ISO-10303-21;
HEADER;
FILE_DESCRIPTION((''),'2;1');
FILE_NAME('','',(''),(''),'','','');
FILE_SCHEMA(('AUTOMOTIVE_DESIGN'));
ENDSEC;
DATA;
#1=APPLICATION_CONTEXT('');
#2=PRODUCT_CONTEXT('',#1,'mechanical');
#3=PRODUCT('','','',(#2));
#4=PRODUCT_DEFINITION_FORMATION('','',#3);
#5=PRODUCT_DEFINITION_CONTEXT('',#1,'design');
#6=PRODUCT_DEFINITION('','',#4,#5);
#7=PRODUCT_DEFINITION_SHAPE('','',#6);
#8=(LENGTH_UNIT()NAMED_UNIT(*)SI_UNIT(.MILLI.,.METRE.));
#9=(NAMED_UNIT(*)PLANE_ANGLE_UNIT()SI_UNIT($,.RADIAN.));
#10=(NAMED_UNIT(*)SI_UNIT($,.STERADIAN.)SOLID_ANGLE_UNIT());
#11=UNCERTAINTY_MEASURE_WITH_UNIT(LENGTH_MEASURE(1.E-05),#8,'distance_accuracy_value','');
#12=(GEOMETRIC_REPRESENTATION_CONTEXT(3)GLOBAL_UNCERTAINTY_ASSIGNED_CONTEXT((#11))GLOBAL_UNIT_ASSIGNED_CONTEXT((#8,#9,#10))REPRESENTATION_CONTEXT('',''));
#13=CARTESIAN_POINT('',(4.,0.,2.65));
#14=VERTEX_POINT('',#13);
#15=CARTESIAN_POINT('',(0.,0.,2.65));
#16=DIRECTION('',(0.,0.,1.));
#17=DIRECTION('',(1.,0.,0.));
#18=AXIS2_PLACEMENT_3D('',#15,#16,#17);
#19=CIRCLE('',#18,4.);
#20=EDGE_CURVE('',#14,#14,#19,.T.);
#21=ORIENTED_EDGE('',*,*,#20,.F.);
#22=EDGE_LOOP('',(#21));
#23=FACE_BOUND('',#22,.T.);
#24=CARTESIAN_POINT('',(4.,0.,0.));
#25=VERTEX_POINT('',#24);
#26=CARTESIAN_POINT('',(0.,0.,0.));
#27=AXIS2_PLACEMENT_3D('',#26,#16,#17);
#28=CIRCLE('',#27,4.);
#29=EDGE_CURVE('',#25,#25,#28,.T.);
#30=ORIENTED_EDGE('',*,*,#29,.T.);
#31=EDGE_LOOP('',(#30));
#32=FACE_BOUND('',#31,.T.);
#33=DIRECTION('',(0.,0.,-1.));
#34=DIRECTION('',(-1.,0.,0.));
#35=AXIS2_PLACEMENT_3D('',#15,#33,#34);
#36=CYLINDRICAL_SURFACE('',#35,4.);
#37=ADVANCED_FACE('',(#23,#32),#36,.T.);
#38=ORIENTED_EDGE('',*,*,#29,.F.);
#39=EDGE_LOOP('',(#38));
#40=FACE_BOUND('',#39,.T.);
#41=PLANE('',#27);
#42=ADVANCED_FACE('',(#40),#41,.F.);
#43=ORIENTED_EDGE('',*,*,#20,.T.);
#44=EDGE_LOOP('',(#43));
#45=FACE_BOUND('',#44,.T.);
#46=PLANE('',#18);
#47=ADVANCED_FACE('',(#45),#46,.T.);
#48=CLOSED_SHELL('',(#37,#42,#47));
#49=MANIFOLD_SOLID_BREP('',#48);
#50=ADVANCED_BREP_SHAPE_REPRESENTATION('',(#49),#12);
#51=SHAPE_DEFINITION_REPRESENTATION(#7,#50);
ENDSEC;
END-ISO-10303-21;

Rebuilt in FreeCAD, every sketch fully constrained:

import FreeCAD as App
import Part
import Sketcher

doc = App.newDocument("Part")
body = doc.addObject("PartDesign::Body", "Body")

sketch1 = body.newObject("Sketcher::SketchObject", "Sketch")
sketch1.AttachmentSupport = (doc.getObject("XY_Plane"), [""])
sketch1.MapMode = "FlatFace"
sketch1.addGeometry(Part.Circle(App.Vector(0, 0, 0), App.Vector(0, 0, 1), 4), False)
sketch1.addConstraint(Sketcher.Constraint("Coincident", 0, 3, -1, 1))
sketch1.addConstraint(Sketcher.Constraint("Diameter", 0, 8.0))
pad1 = body.newObject("PartDesign::Pad", "Pad")
pad1.Profile = sketch1
pad1.Length = 2.65

doc.recompute()
